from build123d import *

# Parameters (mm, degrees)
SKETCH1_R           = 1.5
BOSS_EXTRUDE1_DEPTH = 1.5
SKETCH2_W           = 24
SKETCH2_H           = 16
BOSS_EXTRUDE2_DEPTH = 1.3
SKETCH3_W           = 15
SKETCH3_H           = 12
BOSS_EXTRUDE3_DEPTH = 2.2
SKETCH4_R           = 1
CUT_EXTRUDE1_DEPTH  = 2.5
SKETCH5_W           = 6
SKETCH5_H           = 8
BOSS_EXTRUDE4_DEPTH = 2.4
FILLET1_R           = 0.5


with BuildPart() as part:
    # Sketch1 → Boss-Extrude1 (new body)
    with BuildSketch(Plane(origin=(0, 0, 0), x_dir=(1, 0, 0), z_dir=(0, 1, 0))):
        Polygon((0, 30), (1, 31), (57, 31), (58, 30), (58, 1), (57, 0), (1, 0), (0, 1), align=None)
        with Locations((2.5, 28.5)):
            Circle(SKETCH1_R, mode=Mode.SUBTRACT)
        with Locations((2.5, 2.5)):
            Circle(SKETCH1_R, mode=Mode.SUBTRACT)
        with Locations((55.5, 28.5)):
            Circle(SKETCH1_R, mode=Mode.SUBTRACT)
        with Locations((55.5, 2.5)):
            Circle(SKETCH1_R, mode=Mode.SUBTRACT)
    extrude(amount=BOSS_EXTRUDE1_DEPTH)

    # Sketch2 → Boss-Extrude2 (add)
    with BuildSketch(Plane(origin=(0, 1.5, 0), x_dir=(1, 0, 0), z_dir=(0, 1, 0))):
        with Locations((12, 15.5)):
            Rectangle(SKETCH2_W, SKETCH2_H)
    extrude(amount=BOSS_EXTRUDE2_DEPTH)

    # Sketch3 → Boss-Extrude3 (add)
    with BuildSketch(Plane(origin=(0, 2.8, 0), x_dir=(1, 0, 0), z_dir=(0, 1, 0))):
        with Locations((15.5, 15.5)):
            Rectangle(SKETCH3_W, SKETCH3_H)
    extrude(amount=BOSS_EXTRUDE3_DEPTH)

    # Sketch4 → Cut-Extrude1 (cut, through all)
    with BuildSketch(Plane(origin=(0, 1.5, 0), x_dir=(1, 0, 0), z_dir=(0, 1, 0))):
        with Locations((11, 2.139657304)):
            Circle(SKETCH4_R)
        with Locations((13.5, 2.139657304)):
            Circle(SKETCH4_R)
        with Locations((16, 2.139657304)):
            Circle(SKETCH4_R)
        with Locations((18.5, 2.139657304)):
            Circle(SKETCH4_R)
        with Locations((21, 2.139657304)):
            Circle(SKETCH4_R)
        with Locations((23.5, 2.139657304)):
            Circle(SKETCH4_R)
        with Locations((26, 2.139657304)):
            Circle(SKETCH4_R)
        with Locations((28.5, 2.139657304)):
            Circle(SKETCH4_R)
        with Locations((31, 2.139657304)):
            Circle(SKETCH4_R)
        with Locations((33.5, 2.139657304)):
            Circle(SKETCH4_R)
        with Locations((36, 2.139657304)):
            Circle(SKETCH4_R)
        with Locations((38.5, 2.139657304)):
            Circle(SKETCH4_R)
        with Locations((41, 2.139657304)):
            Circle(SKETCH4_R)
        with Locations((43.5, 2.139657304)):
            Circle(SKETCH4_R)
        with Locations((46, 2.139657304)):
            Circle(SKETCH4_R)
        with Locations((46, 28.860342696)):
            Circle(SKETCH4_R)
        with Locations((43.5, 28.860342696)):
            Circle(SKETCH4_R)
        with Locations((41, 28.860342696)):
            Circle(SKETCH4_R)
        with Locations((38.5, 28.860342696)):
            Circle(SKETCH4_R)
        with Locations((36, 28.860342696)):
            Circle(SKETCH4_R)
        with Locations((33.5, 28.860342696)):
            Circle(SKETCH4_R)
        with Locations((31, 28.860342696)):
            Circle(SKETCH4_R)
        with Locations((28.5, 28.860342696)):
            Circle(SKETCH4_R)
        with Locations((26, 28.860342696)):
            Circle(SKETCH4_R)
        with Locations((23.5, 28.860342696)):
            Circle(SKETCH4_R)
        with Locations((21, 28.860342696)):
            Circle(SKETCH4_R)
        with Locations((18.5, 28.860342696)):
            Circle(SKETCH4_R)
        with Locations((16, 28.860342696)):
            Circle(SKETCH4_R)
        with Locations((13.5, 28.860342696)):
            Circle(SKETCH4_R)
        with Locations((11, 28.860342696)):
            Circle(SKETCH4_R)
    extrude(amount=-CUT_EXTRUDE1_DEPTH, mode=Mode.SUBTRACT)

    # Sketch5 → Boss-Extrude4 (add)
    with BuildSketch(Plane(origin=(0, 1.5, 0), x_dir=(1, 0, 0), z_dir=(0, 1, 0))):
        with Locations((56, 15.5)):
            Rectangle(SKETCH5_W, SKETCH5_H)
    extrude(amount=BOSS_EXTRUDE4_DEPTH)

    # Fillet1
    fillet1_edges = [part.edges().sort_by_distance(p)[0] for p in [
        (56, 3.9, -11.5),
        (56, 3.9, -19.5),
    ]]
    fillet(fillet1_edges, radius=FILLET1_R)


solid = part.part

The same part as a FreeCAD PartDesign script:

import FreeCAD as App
import Part
import Sketcher

V = App.Vector


def edges_at(feature, points):
    """Names of the edges that pass closest to the given points."""
    edges = feature.Shape.Edges
    near = lambda p: min(range(len(edges)), key=lambda i: edges[i].distToShape(Part.Vertex(*p))[0])
    return sorted({f"Edge{near(p) + 1}" for p in points})

doc = App.newDocument("Part")
params = doc.addObject("Spreadsheet::Sheet", "Params")
for row, (alias, value) in enumerate([
    ("sketch1_diameter", "3 mm"),
    ("sketch1_width", "56 mm"),
    ("sketch1_height", "29 mm"),
    ("pad1_length", "1.5 mm"),
    ("sketch2_width", "24 mm"),
    ("sketch2_height", "16 mm"),
    ("pad2_length", "1.3 mm"),
    ("sketch3_width", "15 mm"),
    ("sketch3_height", "12 mm"),
    ("pad3_length", "2.2 mm"),
    ("sketch4_diameter", "2 mm"),
    ("sketch5_width", "6 mm"),
    ("sketch5_height", "8 mm"),
    ("pad4_length", "2.4 mm"),
    ("fillet_radius", "0.5 mm"),
], start=1):
    params.set(f"A{row}", alias)
    params.set(f"B{row}", "=" + value)
    params.setAlias(f"B{row}", alias)

body = doc.addObject("PartDesign::Body", "Body")

# Sketch on XZ plane
sketch1 = body.newObject("Sketcher::SketchObject", "Sketch")
sketch1.AttachmentSupport = (doc.getObject("XZ_Plane"), [""])
sketch1.MapMode = "FlatFace"
sketch1.addGeometry([
    Part.LineSegment(V(1, -31, 0), V(0, -30, 0)),  # 0
    Part.LineSegment(V(0, -30, 0), V(0, -1, 0)),  # 1
    Part.LineSegment(V(0, -1, 0), V(1, 0, 0)),  # 2
    Part.LineSegment(V(1, 0, 0), V(57, 0, 0)),  # 3
    Part.LineSegment(V(57, 0, 0), V(58, -1, 0)),  # 4
    Part.LineSegment(V(58, -1, 0), V(58, -30, 0)),  # 5
    Part.LineSegment(V(58, -30, 0), V(57, -31, 0)),  # 6
    Part.LineSegment(V(57, -31, 0), V(1, -31, 0)),  # 7
    Part.Circle(V(55.5, -2.5, 0), V(0, 0, 1), 1.5),  # 8
    Part.Circle(V(2.5, -2.5, 0), V(0, 0, 1), 1.5),  # 9
    Part.Circle(V(55.5, -28.5, 0), V(0, 0, 1), 1.5),  # 10
    Part.Circle(V(2.5, -28.5, 0), V(0, 0, 1), 1.5),  # 11
], False)
sketch1.addConstraint([
    Sketcher.Constraint("Coincident", 0, 2, 1, 1),
    Sketcher.Constraint("Coincident", 1, 2, 2, 1),
    Sketcher.Constraint("Coincident", 2, 2, 3, 1),
    Sketcher.Constraint("Coincident", 3, 2, 4, 1),
    Sketcher.Constraint("Coincident", 4, 2, 5, 1),
    Sketcher.Constraint("Coincident", 5, 2, 6, 1),
    Sketcher.Constraint("Coincident", 6, 2, 7, 1),
    Sketcher.Constraint("Coincident", 7, 2, 0, 1),
    Sketcher.Constraint("Vertical", 1),
    Sketcher.Constraint("Horizontal", 3),
    Sketcher.Constraint("Vertical", 5),
    Sketcher.Constraint("Horizontal", 7),
    Sketcher.Constraint("Equal", 8, 9),
    Sketcher.Constraint("Equal", 9, 10),
    Sketcher.Constraint("Equal", 10, 11),
    Sketcher.Constraint("PointOnObject", 0, 2, -2),
    Sketcher.Constraint("PointOnObject", 2, 2, -1),
    Sketcher.Constraint("Perpendicular", 0, 2),
    Sketcher.Constraint("Perpendicular", 2, 4),
    Sketcher.Constraint("Perpendicular", 4, 6),
    Sketcher.Constraint("Horizontal", 8, 3, 9, 3),
    Sketcher.Constraint("Horizontal", 10, 3, 11, 3),
    Sketcher.Constraint("Horizontal", 1, 2, 4, 2),
    Sketcher.Constraint("Horizontal", 0, 2, 5, 2),
    Sketcher.Constraint("Vertical", 8, 3, 10, 3),
    Sketcher.Constraint("Vertical", 9, 3, 11, 3),
    Sketcher.Constraint("Vertical", 3, 2, 6, 2),
    Sketcher.Constraint("Vertical", 2, 2, 7, 2),
    Sketcher.Constraint("Diameter", 8, 3.0),
    Sketcher.Constraint("DistanceX", 3, 1, 3, 2, 56.0),
    Sketcher.Constraint("DistanceY", 1, 1, 1, 2, 29.0),
    Sketcher.Constraint("DistanceY", 0, 2, -1, 1, 30.0),
    Sketcher.Constraint("DistanceX", 9, 3, 8, 3, 53.0),
    Sketcher.Constraint("DistanceY", 10, 3, 8, 3, 26.0),
    Sketcher.Constraint("DistanceX", -1, 1, 8, 3, 55.5),
    Sketcher.Constraint("DistanceY", 8, 3, -1, 1, 2.5),
])
sketch1.setExpression("Constraints[28]", "Params.sketch1_diameter")
sketch1.setExpression("Constraints[29]", "Params.sketch1_width")
sketch1.setExpression("Constraints[30]", "Params.sketch1_height")
pad1 = body.newObject("PartDesign::Pad", "Pad")
pad1.Profile = sketch1
pad1.setExpression("Length", "Params.pad1_length")
pad1.Reversed = True

# Sketch on XZ plane
sketch2 = body.newObject("Sketcher::SketchObject", "Sketch001")
sketch2.AttachmentSupport = (doc.getObject("XZ_Plane"), [""])
sketch2.MapMode = "FlatFace"
sketch2.AttachmentOffset = App.Placement(V(0, 0, -1.5), App.Rotation())
sketch2.addGeometry([
    Part.LineSegment(V(0, -24, 0), V(0, -8, 0)),
    Part.LineSegment(V(0, -8, 0), V(24, -8, 0)),
    Part.LineSegment(V(24, -8, 0), V(24, -24, 0)),
    Part.LineSegment(V(24, -24, 0), V(0, -24, 0)),
], False)
sketch2.addConstraint([
    Sketcher.Constraint("Coincident", 0, 2, 1, 1),
    Sketcher.Constraint("Coincident", 1, 2, 2, 1),
    Sketcher.Constraint("Coincident", 2, 2, 3, 1),
    Sketcher.Constraint("Coincident", 3, 2, 0, 1),
    Sketcher.Constraint("Vertical", 0),
    Sketcher.Constraint("Horizontal", 1),
    Sketcher.Constraint("Vertical", 2),
    Sketcher.Constraint("Horizontal", 3),
    Sketcher.Constraint("PointOnObject", 0, 2, -2),
    Sketcher.Constraint("DistanceX", 1, 1, 1, 2, 24.0),
    Sketcher.Constraint("DistanceY", 0, 1, 0, 2, 16.0),
    Sketcher.Constraint("DistanceY", 0, 2, -1, 1, 7.5),
])
sketch2.setExpression("Constraints[9]", "Params.sketch2_width")
sketch2.setExpression("Constraints[10]", "Params.sketch2_height")
pad2 = body.newObject("PartDesign::Pad", "Pad001")
pad2.Profile = sketch2
pad2.setExpression("Length", "Params.pad2_length")
pad2.Reversed = True

# Sketch on XZ plane
sketch3 = body.newObject("Sketcher::SketchObject", "Sketch002")
sketch3.AttachmentSupport = (doc.getObject("XZ_Plane"), [""])
sketch3.MapMode = "FlatFace"
sketch3.AttachmentOffset = App.Placement(V(0, 0, -2.8), App.Rotation())
sketch3.addGeometry([
    Part.LineSegment(V(8, -22, 0), V(8, -10, 0)),
    Part.LineSegment(V(8, -10, 0), V(23, -10, 0)),
    Part.LineSegment(V(23, -10, 0), V(23, -22, 0)),
    Part.LineSegment(V(23, -22, 0), V(8, -22, 0)),
], False)
sketch3.addConstraint([
    Sketcher.Constraint("Coincident", 0, 2, 1, 1),
    Sketcher.Constraint("Coincident", 1, 2, 2, 1),
    Sketcher.Constraint("Coincident", 2, 2, 3, 1),
    Sketcher.Constraint("Coincident", 3, 2, 0, 1),
    Sketcher.Constraint("Vertical", 0),
    Sketcher.Constraint("Horizontal", 1),
    Sketcher.Constraint("Vertical", 2),
    Sketcher.Constraint("Horizontal", 3),
    Sketcher.Constraint("DistanceX", 1, 1, 1, 2, 15.0),
    Sketcher.Constraint("DistanceY", 0, 1, 0, 2, 12.0),
    Sketcher.Constraint("DistanceX", -1, 1, 0, 2, 8.0),
    Sketcher.Constraint("DistanceY", 0, 2, -1, 1, 9.5),
])
sketch3.setExpression("Constraints[8]", "Params.sketch3_width")
sketch3.setExpression("Constraints[9]", "Params.sketch3_height")
pad3 = body.newObject("PartDesign::Pad", "Pad002")
pad3.Profile = sketch3
pad3.setExpression("Length", "Params.pad3_length")
pad3.Reversed = True

# Sketch on XZ plane
sketch4 = body.newObject("Sketcher::SketchObject", "Sketch003")
sketch4.AttachmentSupport = (doc.getObject("XZ_Plane"), [""])
sketch4.MapMode = "FlatFace"
sketch4.AttachmentOffset = App.Placement(V(0, 0, -1.5), App.Rotation())
sketch4.addGeometry([
    Part.Circle(V(11, -2.1, 0), V(0, 0, 1), 1),  # 0
    Part.Circle(V(13.5, -2.1, 0), V(0, 0, 1), 1),  # 1
    Part.Circle(V(16, -2.1, 0), V(0, 0, 1), 1),  # 2
    Part.Circle(V(18.5, -2.1, 0), V(0, 0, 1), 1),  # 3
    Part.Circle(V(21, -2.1, 0), V(0, 0, 1), 1),  # 4
    Part.Circle(V(23.5, -2.1, 0), V(0, 0, 1), 1),  # 5
    Part.Circle(V(26, -2.1, 0), V(0, 0, 1), 1),  # 6
    Part.Circle(V(28.5, -2.1, 0), V(0, 0, 1), 1),  # 7
    Part.Circle(V(31, -2.1, 0), V(0, 0, 1), 1),  # 8
    Part.Circle(V(33.5, -2.1, 0), V(0, 0, 1), 1),  # 9
    Part.Circle(V(36, -2.1, 0), V(0, 0, 1), 1),  # 10
    Part.Circle(V(38.5, -2.1, 0), V(0, 0, 1), 1),  # 11
    Part.Circle(V(41, -2.1, 0), V(0, 0, 1), 1),  # 12
    Part.Circle(V(43.5, -2.1, 0), V(0, 0, 1), 1),  # 13
    Part.Circle(V(46, -2.1, 0), V(0, 0, 1), 1),  # 14
    Part.Circle(V(46, -28.9, 0), V(0, 0, 1), 1),  # 15
    Part.Circle(V(43.5, -28.9, 0), V(0, 0, 1), 1),  # 16
    Part.Circle(V(41, -28.9, 0), V(0, 0, 1), 1),  # 17
    Part.Circle(V(38.5, -28.9, 0), V(0, 0, 1), 1),  # 18
    Part.Circle(V(36, -28.9, 0), V(0, 0, 1), 1),  # 19
    Part.Circle(V(33.5, -28.9, 0), V(0, 0, 1), 1),  # 20
    Part.Circle(V(31, -28.9, 0), V(0, 0, 1), 1),  # 21
    Part.Circle(V(28.5, -28.9, 0), V(0, 0, 1), 1),  # 22
    Part.Circle(V(26, -28.9, 0), V(0, 0, 1), 1),  # 23
    Part.Circle(V(23.5, -28.9, 0), V(0, 0, 1), 1),  # 24
    Part.Circle(V(21, -28.9, 0), V(0, 0, 1), 1),  # 25
    Part.Circle(V(18.5, -28.9, 0), V(0, 0, 1), 1),  # 26
    Part.Circle(V(16, -28.9, 0), V(0, 0, 1), 1),  # 27
    Part.Circle(V(13.5, -28.9, 0), V(0, 0, 1), 1),  # 28
    Part.Circle(V(11, -28.9, 0), V(0, 0, 1), 1),  # 29
], False)
sketch4.addConstraint([
    Sketcher.Constraint("Equal", 0, 1),
    Sketcher.Constraint("Equal", 1, 2),
    Sketcher.Constraint("Equal", 2, 3),
    Sketcher.Constraint("Equal", 3, 4),
    Sketcher.Constraint("Equal", 4, 5),
    Sketcher.Constraint("Equal", 5, 6),
    Sketcher.Constraint("Equal", 6, 7),
    Sketcher.Constraint("Equal", 7, 8),
    Sketcher.Constraint("Equal", 8, 9),
    Sketcher.Constraint("Equal", 9, 10),
    Sketcher.Constraint("Equal", 10, 11),
    Sketcher.Constraint("Equal", 11, 12),
    Sketcher.Constraint("Equal", 12, 13),
    Sketcher.Constraint("Equal", 13, 14),
    Sketcher.Constraint("Equal", 14, 15),
    Sketcher.Constraint("Equal", 15, 16),
    Sketcher.Constraint("Equal", 16, 17),
    Sketcher.Constraint("Equal", 17, 18),
    Sketcher.Constraint("Equal", 18, 19),
    Sketcher.Constraint("Equal", 19, 20),
    Sketcher.Constraint("Equal", 20, 21),
    Sketcher.Constraint("Equal", 21, 22),
    Sketcher.Constraint("Equal", 22, 23),
    Sketcher.Constraint("Equal", 23, 24),
    Sketcher.Constraint("Equal", 24, 25),
    Sketcher.Constraint("Equal", 25, 26),
    Sketcher.Constraint("Equal", 26, 27),
    Sketcher.Constraint("Equal", 27, 28),
    Sketcher.Constraint("Equal", 28, 29),
    Sketcher.Constraint("Horizontal", 0, 3, 1, 3),
    Sketcher.Constraint("Horizontal", 1, 3, 2, 3),
    Sketcher.Constraint("Horizontal", 2, 3, 3, 3),
    Sketcher.Constraint("Horizontal", 3, 3, 4, 3),
    Sketcher.Constraint("Horizontal", 4, 3, 5, 3),
    Sketcher.Constraint("Horizontal", 5, 3, 6, 3),
    Sketcher.Constraint("Horizontal", 6, 3, 7, 3),
    Sketcher.Constraint("Horizontal", 7, 3, 8, 3),
    Sketcher.Constraint("Horizontal", 8, 3, 9, 3),
    Sketcher.Constraint("Horizontal", 9, 3, 10, 3),
    Sketcher.Constraint("Horizontal", 10, 3, 11, 3),
    Sketcher.Constraint("Horizontal", 11, 3, 12, 3),
    Sketcher.Constraint("Horizontal", 12, 3, 13, 3),
    Sketcher.Constraint("Horizontal", 13, 3, 14, 3),
    Sketcher.Constraint("Horizontal", 15, 3, 16, 3),
    Sketcher.Constraint("Horizontal", 16, 3, 17, 3),
    Sketcher.Constraint("Horizontal", 17, 3, 18, 3),
    Sketcher.Constraint("Horizontal", 18, 3, 19, 3),
    Sketcher.Constraint("Horizontal", 19, 3, 20, 3),
    Sketcher.Constraint("Horizontal", 20, 3, 21, 3),
    Sketcher.Constraint("Horizontal", 21, 3, 22, 3),
    Sketcher.Constraint("Horizontal", 22, 3, 23, 3),
    Sketcher.Constraint("Horizontal", 23, 3, 24, 3),
    Sketcher.Constraint("Horizontal", 24, 3, 25, 3),
    Sketcher.Constraint("Horizontal", 25, 3, 26, 3),
    Sketcher.Constraint("Horizontal", 26, 3, 27, 3),
    Sketcher.Constraint("Horizontal", 27, 3, 28, 3),
    Sketcher.Constraint("Horizontal", 28, 3, 29, 3),
    Sketcher.Constraint("Vertical", 14, 3, 15, 3),
    Sketcher.Constraint("Vertical", 13, 3, 16, 3),
    Sketcher.Constraint("Vertical", 12, 3, 17, 3),
    Sketcher.Constraint("Vertical", 11, 3, 18, 3),
    Sketcher.Constraint("Vertical", 10, 3, 19, 3),
    Sketcher.Constraint("Vertical", 9, 3, 20, 3),
    Sketcher.Constraint("Vertical", 8, 3, 21, 3),
    Sketcher.Constraint("Vertical", 7, 3, 22, 3),
    Sketcher.Constraint("Vertical", 6, 3, 23, 3),
    Sketcher.Constraint("Vertical", 5, 3, 24, 3),
    Sketcher.Constraint("Vertical", 4, 3, 25, 3),
    Sketcher.Constraint("Vertical", 3, 3, 26, 3),
    Sketcher.Constraint("Vertical", 2, 3, 27, 3),
    Sketcher.Constraint("Vertical", 1, 3, 28, 3),
    Sketcher.Constraint("Vertical", 0, 3, 29, 3),
    Sketcher.Constraint("Diameter", 0, 2.0),
    Sketcher.Constraint("DistanceX", -1, 1, 0, 3, 11.0),
    Sketcher.Constraint("DistanceX", -1, 1, 2, 3, 16.0),
    Sketcher.Constraint("DistanceX", -1, 1, 4, 3, 21.0),
    Sketcher.Constraint("DistanceX", -1, 1, 6, 3, 26.0),
    Sketcher.Constraint("DistanceX", -1, 1, 8, 3, 31.0),
    Sketcher.Constraint("DistanceX", -1, 1, 10, 3, 36.0),
    Sketcher.Constraint("DistanceX", -1, 1, 12, 3, 41.0),
    Sketcher.Constraint("DistanceX", -1, 1, 14, 3, 46.0),
    Sketcher.Constraint("DistanceX", 1, 3, 3, 3, 5.0),
    Sketcher.Constraint("DistanceX", 3, 3, 5, 3, 5.0),
    Sketcher.Constraint("DistanceX", 5, 3, 7, 3, 5.0),
    Sketcher.Constraint("DistanceX", 7, 3, 9, 3, 5.0),
    Sketcher.Constraint("DistanceX", 9, 3, 11, 3, 5.0),
    Sketcher.Constraint("DistanceX", 11, 3, 13, 3, 5.0),
    Sketcher.Constraint("DistanceX", -1, 1, 1, 3, 13.5),
    Sketcher.Constraint("DistanceY", 0, 3, -1, 1, 2.139657),
    Sketcher.Constraint("DistanceY", 15, 3, -1, 1, 28.860343),
])
sketch4.setExpression("Constraints[72]", "Params.sketch4_diameter")
pocket1 = body.newObject("PartDesign::Pocket", "Pocket")
pocket1.Profile = sketch4
pocket1.Type = "ThroughAll"
pocket1.Reversed = True

# Sketch on XZ plane
sketch5 = body.newObject("Sketcher::SketchObject", "Sketch004")
sketch5.AttachmentSupport = (doc.getObject("XZ_Plane"), [""])
sketch5.MapMode = "FlatFace"
sketch5.AttachmentOffset = App.Placement(V(0, 0, -1.5), App.Rotation())
sketch5.addGeometry([
    Part.LineSegment(V(53, -20, 0), V(53, -12, 0)),
    Part.LineSegment(V(53, -12, 0), V(59, -12, 0)),
    Part.LineSegment(V(59, -12, 0), V(59, -20, 0)),
    Part.LineSegment(V(59, -20, 0), V(53, -20, 0)),
], False)
sketch5.addConstraint([
    Sketcher.Constraint("Coincident", 0, 2, 1, 1),
    Sketcher.Constraint("Coincident", 1, 2, 2, 1),
    Sketcher.Constraint("Coincident", 2, 2, 3, 1),
    Sketcher.Constraint("Coincident", 3, 2, 0, 1),
    Sketcher.Constraint("Vertical", 0),
    Sketcher.Constraint("Horizontal", 1),
    Sketcher.Constraint("Vertical", 2),
    Sketcher.Constraint("Horizontal", 3),
    Sketcher.Constraint("DistanceX", 1, 1, 1, 2, 6.0),
    Sketcher.Constraint("DistanceY", 0, 1, 0, 2, 8.0),
    Sketcher.Constraint("DistanceX", -1, 1, 0, 2, 53.0),
    Sketcher.Constraint("DistanceY", 0, 2, -1, 1, 11.5),
])
sketch5.setExpression("Constraints[8]", "Params.sketch5_width")
sketch5.setExpression("Constraints[9]", "Params.sketch5_height")
pad4 = body.newObject("PartDesign::Pad", "Pad003")
pad4.Profile = sketch5
pad4.setExpression("Length", "Params.pad4_length")
pad4.Reversed = True
doc.recompute()

fillet = body.newObject("PartDesign::Fillet", "Fillet")
fillet.Base = (pad4, edges_at(pad4, [(56, 3.9, -11.5), (56, 3.9, -19.5)]))
fillet.setExpression("Radius", "Params.fillet_radius")

doc.recompute()
